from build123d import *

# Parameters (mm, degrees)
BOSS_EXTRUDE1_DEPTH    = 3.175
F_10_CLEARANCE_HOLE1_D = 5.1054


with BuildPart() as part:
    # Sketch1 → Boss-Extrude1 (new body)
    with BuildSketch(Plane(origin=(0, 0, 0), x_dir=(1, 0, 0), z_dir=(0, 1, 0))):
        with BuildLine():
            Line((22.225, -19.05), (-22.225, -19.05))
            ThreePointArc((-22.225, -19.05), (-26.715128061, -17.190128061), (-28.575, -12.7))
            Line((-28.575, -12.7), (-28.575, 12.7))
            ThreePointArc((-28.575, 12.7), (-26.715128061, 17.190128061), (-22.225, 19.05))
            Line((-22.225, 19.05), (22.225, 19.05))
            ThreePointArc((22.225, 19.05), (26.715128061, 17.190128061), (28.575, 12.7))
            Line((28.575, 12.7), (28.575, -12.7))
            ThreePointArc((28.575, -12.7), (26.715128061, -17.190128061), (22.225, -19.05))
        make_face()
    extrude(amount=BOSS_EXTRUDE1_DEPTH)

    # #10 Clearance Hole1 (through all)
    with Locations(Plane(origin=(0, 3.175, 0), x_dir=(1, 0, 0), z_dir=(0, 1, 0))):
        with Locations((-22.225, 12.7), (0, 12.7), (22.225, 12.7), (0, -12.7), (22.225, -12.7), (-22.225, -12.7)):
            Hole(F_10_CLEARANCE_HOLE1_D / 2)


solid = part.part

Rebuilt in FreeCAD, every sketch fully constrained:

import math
import FreeCAD as App
import Part
import Sketcher

V = App.Vector
Q = App.Units.Quantity

doc = App.newDocument("Part")
params = doc.addObject("Spreadsheet::Sheet", "Params")
for row, (alias, value) in enumerate([
    ("sketch1_height", "1 in"),
    ("sketch1_radius", "0.25 in"),
    ("pad1_length", "0.125 in"),
    ("sketch2_diameter", "0.201 in"),
    ("hole_diameter", "0.201 in"),
], start=1):
    params.set(f"A{row}", alias)
    params.set(f"B{row}", "=" + value)
    params.setAlias(f"B{row}", alias)

body = doc.addObject("PartDesign::Body", "Body")

sketch1 = doc.addObject("Sketcher::SketchObject", "Sketch")
body.addObject(sketch1)
sketch1.AttachmentSupport = (doc.XZ_Plane, [""])
sketch1.MapMode = "FlatFace"
sketch1.addGeometry([
    Part.LineSegment(V(-22.225, 19.05, 0), V(22.225, 19.05, 0)),
    Part.ArcOfCircle(Part.Circle(V(22.225, 12.7, 0), V(0, 0, 1), 6.35), math.radians(0), math.radians(90)),
    Part.LineSegment(V(28.575, 12.7, 0), V(28.575, -12.7, 0)),
    Part.ArcOfCircle(Part.Circle(V(22.225, -12.7, 0), V(0, 0, 1), 6.35), math.radians(-90), math.radians(0)),
    Part.LineSegment(V(22.225, -19.05, 0), V(-22.225, -19.05, 0)),
    Part.ArcOfCircle(Part.Circle(V(-22.225, -12.7, 0), V(0, 0, 1), 6.35), math.radians(180), math.radians(270)),
    Part.LineSegment(V(-28.575, -12.7, 0), V(-28.575, 12.7, 0)),
    Part.ArcOfCircle(Part.Circle(V(-22.225, 12.7, 0), V(0, 0, 1), 6.35), math.radians(90), math.radians(180)),
], False)
sketch1.addConstraint([
    Sketcher.Constraint("Tangent", 0, 2, 1, 2),
    Sketcher.Constraint("Tangent", 1, 1, 2, 1),
    Sketcher.Constraint("Tangent", 2, 2, 3, 2),
    Sketcher.Constraint("Tangent", 3, 1, 4, 1),
    Sketcher.Constraint("Tangent", 4, 2, 5, 2),
    Sketcher.Constraint("Tangent", 5, 1, 6, 1),
    Sketcher.Constraint("Tangent", 6, 2, 7, 2),
    Sketcher.Constraint("Tangent", 7, 1, 0, 1),
    Sketcher.Constraint("Horizontal", 0),
    Sketcher.Constraint("Vertical", 2),
    Sketcher.Constraint("Horizontal", 4),
    Sketcher.Constraint("Vertical", 6),
    Sketcher.Constraint("Equal", 1, 3),
    Sketcher.Constraint("Equal", 3, 5),
    Sketcher.Constraint("Equal", 5, 7),
    Sketcher.Constraint("Symmetric", 1, 3, 5, 3, -1, 1),
    Sketcher.Constraint("DistanceY", 2, 2, 2, 1, Q("1 in")),
    Sketcher.Constraint("Radius", 1, Q("0.25 in")),
    Sketcher.Constraint("DistanceX", 7, 3, 1, 1, Q("2 in")),
])
sketch1.setExpression("Constraints[16]", "Params.sketch1_height")
sketch1.setExpression("Constraints[17]", "Params.sketch1_radius")
pad1 = doc.addObject("PartDesign::Pad", "Pad")
body.addObject(pad1)
pad1.Profile = sketch1
pad1.setExpression("Length", "Params.pad1_length")
pad1.Reversed = True

sketch2 = doc.addObject("Sketcher::SketchObject", "Sketch001")
body.addObject(sketch2)
sketch2.AttachmentSupport = (doc.XZ_Plane, [""])
sketch2.MapMode = "FlatFace"
sketch2.AttachmentOffset = App.Placement(V(0, 0, -0.125 * 25.4), App.Rotation())
sketch2.addGeometry([
    Part.Circle(V(-22.225, -12.7, 0), V(0, 0, 1), 2.5527),
    Part.Circle(V(0, -12.7, 0), V(0, 0, 1), 2.5527),
    Part.Circle(V(22.225, -12.7, 0), V(0, 0, 1), 2.5527),
    Part.Circle(V(0, 12.7, 0), V(0, 0, 1), 2.5527),
    Part.Circle(V(22.225, 12.7, 0), V(0, 0, 1), 2.5527),
    Part.Circle(V(-22.225, 12.7, 0), V(0, 0, 1), 2.5527),
], False)
sketch2.addConstraint([
    Sketcher.Constraint("Equal", 0, 1),
    Sketcher.Constraint("Equal", 1, 2),
    Sketcher.Constraint("Equal", 2, 3),
    Sketcher.Constraint("Equal", 3, 4),
    Sketcher.Constraint("Equal", 4, 5),
    Sketcher.Constraint("Symmetric", 1, 3, 3, 3, -1, 1),
    Sketcher.Constraint("Symmetric", 0, 3, 4, 3, -1, 1),
    Sketcher.Constraint("Symmetric", 2, 3, 5, 3, -1, 1),
    Sketcher.Constraint("Symmetric", 0, 3, 2, 3, -2),
    Sketcher.Constraint("PointOnObject", 1, 3, -2),
    Sketcher.Constraint("Horizontal", 0, 3, 1, 3),
    Sketcher.Constraint("Diameter", 0, Q("0.201 in")),
    Sketcher.Constraint("DistanceY", 1, 3, 3, 3, Q("1 in")),
    Sketcher.Constraint("DistanceX", 0, 3, 2, 3, Q("1.75 in")),
])
sketch2.setExpression("Constraints[11]", "Params.sketch2_diameter")
doc.recompute()
hole = doc.addObject("PartDesign::Hole", "Hole")
body.addObject(hole)
hole.Profile = sketch2
hole.ThreadType = "None"
hole.setExpression("Diameter", "Params.hole_diameter")
hole.DepthType = "ThroughAll"
hole.Reversed = True

doc.recompute()
